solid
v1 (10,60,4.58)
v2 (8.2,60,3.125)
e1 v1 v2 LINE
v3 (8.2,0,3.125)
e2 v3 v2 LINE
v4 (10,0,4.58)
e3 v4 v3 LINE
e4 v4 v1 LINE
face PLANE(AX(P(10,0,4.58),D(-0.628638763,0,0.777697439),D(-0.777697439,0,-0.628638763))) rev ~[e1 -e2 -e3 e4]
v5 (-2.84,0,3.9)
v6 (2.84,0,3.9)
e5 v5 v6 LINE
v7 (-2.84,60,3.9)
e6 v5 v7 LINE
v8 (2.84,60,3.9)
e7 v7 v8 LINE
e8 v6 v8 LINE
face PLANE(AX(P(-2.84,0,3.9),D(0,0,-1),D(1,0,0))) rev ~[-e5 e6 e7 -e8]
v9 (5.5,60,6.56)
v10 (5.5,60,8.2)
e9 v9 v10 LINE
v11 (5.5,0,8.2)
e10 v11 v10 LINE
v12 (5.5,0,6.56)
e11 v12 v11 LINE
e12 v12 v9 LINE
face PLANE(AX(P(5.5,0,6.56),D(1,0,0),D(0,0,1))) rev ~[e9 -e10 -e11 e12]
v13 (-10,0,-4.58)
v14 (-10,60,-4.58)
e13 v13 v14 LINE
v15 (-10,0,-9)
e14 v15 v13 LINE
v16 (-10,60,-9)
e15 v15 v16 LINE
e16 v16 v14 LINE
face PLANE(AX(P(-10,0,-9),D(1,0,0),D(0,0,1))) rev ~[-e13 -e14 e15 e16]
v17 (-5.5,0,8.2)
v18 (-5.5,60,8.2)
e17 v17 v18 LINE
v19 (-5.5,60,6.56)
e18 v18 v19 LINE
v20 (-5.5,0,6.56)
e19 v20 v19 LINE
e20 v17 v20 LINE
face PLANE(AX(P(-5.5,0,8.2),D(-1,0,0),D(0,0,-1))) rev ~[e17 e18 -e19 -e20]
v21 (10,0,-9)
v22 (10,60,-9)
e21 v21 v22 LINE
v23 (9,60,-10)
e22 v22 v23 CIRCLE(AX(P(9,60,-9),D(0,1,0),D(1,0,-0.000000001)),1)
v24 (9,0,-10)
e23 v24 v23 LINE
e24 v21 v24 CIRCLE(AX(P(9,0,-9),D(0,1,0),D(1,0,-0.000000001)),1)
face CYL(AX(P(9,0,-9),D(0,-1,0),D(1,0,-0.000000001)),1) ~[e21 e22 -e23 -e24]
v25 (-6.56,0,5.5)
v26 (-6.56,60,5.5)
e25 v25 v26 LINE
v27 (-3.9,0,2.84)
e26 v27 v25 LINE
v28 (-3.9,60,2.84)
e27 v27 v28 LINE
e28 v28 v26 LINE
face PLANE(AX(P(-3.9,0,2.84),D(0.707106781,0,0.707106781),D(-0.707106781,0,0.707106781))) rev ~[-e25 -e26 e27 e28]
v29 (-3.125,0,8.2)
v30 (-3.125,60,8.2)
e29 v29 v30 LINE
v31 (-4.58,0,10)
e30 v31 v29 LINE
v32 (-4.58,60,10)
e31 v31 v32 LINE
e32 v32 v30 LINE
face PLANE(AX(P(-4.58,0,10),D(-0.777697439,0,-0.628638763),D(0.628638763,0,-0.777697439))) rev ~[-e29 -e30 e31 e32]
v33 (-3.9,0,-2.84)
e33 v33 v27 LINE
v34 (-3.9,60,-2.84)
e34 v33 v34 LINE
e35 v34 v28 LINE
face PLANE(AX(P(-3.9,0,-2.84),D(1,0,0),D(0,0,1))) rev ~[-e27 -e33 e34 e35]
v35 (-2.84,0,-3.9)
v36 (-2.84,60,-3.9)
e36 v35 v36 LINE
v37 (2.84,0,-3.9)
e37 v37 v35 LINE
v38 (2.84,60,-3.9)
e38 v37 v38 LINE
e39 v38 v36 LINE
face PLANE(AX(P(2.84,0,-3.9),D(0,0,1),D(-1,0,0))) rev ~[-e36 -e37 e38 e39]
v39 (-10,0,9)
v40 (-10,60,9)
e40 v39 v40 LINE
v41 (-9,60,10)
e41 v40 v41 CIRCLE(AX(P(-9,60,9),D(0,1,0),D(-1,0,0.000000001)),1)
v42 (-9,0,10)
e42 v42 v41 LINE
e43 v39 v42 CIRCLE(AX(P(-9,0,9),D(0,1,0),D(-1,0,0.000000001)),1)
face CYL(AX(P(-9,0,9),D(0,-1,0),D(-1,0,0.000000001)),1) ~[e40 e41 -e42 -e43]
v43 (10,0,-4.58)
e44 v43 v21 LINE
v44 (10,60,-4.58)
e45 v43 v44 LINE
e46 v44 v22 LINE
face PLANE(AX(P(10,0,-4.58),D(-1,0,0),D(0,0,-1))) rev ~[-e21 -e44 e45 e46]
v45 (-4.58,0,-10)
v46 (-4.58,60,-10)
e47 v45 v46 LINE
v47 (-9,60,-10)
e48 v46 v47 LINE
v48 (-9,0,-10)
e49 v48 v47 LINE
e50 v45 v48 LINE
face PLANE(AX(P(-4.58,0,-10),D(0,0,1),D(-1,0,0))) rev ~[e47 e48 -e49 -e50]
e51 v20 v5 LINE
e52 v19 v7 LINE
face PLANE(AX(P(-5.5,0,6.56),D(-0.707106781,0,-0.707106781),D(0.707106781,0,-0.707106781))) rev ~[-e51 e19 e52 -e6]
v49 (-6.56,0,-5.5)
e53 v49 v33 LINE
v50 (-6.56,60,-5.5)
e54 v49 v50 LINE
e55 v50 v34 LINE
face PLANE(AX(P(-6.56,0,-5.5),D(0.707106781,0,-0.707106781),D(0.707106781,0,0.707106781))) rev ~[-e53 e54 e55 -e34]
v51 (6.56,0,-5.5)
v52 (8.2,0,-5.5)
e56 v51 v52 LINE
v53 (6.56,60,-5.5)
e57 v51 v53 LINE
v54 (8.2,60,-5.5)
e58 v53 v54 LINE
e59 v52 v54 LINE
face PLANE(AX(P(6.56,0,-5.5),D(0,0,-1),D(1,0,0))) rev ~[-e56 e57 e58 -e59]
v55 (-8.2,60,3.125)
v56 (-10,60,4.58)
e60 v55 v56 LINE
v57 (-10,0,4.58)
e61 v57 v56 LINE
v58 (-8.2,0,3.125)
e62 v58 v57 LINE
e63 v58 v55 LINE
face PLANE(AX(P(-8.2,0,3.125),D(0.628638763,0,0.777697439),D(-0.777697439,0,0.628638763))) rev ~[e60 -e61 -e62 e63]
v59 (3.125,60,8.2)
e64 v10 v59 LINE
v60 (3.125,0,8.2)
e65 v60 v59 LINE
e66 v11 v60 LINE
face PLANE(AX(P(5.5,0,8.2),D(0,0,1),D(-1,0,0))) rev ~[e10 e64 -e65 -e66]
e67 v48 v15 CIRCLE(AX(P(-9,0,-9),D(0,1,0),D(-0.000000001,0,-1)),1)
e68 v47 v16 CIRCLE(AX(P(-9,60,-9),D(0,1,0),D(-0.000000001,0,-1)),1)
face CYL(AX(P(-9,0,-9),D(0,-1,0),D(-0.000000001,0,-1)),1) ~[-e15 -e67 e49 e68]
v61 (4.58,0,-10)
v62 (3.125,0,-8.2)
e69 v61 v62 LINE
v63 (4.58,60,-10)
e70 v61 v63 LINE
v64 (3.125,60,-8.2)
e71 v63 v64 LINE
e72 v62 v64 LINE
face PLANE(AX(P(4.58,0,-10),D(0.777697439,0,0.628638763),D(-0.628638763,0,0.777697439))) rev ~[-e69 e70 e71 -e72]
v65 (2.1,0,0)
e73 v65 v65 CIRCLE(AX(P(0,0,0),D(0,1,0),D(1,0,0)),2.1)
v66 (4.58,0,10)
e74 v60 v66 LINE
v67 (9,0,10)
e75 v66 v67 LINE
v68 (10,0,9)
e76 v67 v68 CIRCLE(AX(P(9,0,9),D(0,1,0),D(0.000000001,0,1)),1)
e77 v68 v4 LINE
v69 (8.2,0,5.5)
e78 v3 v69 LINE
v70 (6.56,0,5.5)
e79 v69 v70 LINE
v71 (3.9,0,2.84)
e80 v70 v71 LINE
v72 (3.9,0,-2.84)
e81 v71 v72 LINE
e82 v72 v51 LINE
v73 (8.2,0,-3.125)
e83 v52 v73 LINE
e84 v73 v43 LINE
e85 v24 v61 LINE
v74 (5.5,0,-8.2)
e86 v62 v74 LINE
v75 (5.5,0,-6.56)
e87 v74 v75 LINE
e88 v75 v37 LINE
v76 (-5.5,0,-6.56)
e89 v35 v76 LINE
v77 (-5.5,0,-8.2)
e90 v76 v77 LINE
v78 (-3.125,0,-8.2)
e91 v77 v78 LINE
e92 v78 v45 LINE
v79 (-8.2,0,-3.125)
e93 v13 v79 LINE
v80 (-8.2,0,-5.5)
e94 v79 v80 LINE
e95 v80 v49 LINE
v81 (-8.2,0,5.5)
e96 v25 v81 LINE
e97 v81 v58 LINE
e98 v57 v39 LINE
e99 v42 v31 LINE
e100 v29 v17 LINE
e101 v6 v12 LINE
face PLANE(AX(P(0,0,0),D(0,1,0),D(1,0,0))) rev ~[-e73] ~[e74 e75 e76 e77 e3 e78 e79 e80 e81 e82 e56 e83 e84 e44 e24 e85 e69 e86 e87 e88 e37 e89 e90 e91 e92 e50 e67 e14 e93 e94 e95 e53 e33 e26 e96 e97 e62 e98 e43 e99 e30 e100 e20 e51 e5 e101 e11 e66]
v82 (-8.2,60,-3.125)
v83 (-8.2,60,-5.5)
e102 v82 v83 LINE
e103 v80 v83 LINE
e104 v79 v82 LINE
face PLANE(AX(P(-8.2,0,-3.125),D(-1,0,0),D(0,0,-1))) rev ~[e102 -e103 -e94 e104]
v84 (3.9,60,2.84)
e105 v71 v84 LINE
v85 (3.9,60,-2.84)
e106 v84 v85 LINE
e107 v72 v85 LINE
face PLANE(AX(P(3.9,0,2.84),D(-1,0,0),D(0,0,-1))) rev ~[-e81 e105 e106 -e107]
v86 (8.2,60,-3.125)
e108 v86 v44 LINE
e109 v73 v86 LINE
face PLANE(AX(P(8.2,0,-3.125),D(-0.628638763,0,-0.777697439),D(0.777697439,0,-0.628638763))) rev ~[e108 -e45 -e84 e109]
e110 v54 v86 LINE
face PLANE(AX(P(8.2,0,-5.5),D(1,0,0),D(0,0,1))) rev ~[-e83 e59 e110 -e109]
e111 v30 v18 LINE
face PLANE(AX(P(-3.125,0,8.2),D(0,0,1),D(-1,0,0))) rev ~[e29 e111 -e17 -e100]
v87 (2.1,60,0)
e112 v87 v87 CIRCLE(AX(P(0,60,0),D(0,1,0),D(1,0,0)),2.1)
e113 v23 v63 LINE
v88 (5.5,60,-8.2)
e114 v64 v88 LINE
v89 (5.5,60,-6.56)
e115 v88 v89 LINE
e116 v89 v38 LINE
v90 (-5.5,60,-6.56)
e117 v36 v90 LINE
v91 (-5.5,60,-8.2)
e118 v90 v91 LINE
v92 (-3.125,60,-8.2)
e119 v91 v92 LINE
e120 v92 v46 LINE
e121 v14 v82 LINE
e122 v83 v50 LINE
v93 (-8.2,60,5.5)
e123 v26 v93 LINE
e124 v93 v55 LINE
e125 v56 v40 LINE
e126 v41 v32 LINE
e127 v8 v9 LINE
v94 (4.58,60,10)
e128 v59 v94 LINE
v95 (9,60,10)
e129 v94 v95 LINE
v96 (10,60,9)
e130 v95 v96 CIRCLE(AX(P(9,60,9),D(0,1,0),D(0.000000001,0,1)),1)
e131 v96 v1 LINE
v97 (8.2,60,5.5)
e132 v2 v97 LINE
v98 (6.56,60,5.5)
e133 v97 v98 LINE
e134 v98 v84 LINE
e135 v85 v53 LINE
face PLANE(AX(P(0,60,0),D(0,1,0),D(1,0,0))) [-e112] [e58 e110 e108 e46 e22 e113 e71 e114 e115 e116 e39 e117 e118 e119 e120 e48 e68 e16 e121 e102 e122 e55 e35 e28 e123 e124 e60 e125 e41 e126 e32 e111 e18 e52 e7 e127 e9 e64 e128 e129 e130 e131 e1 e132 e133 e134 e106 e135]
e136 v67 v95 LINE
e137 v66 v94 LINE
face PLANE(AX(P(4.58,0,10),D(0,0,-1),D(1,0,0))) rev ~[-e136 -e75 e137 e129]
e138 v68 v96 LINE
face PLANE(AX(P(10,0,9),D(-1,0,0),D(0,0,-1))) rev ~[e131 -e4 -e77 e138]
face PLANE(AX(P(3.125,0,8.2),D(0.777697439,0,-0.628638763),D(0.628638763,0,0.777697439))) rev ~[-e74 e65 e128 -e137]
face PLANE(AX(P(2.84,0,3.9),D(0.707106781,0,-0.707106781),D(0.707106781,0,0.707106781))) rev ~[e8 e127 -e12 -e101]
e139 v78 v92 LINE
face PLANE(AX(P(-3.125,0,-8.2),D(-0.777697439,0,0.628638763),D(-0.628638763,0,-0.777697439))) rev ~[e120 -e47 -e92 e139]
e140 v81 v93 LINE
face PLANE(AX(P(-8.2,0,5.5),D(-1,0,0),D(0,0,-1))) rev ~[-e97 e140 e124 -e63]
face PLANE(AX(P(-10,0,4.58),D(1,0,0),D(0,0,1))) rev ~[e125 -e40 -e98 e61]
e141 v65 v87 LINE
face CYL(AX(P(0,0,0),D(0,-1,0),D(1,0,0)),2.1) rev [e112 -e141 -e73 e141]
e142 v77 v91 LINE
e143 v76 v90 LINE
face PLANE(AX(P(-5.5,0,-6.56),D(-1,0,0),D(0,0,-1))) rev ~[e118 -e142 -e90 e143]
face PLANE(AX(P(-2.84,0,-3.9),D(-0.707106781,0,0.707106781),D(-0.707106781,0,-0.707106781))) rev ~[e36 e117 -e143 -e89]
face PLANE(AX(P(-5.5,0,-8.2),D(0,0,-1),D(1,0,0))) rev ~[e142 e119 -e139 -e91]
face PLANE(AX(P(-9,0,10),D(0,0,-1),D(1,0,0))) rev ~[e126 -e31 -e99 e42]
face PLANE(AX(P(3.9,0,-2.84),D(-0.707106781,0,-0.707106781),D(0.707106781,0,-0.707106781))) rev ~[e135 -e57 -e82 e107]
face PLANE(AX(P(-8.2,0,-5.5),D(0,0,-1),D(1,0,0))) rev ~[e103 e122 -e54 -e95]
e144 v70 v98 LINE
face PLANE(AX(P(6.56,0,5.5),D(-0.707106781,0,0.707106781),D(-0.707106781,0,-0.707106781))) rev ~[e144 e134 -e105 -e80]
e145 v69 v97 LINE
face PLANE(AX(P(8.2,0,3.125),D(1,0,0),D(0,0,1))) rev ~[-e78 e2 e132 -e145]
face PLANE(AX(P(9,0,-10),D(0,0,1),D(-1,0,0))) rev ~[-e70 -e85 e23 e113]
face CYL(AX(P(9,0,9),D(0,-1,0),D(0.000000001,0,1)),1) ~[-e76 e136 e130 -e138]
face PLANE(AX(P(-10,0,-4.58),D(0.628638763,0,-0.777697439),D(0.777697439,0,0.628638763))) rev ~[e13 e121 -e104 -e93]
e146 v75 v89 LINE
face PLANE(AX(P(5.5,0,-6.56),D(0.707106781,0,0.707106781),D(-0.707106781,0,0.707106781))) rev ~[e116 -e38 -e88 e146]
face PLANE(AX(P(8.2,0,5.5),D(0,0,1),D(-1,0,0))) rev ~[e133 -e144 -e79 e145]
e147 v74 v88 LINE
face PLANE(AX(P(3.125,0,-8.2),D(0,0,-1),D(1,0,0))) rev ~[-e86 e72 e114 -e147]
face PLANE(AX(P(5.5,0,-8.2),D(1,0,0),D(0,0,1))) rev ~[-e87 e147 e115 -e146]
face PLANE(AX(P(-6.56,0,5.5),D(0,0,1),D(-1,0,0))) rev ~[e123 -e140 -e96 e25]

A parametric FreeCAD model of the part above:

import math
import FreeCAD as App
import Part
import Sketcher
from FreeCAD import Vector

doc = App.newDocument("Part")
body = doc.addObject("PartDesign::Body", "Body")

sketch1 = doc.addObject("Sketcher::SketchObject", "Sketch")
body.addObject(sketch1)
sketch1.AttachmentSupport = (doc.XZ_Plane, [""])
sketch1.MapMode = "FlatFace"
sketch1.addGeometry(Part.LineSegment(Vector(-5.5, -8.2, 0), Vector(-3.1, -8.2, 0)), False)
sketch1.addGeometry(Part.LineSegment(Vector(-3.1, -8.2, 0), Vector(-4.6, -10, 0)), False)
sketch1.addGeometry(Part.LineSegment(Vector(-4.6, -10, 0), Vector(-9, -10, 0)), False)
sketch1.addGeometry(Part.ArcOfCircle(Part.Circle(Vector(-9, -9, 0), Vector(0, 0, 1), 1), math.radians(-180), math.radians(-90)), False)
sketch1.addGeometry(Part.LineSegment(Vector(-10, -9, 0), Vector(-10, -4.6, 0)), False)
sketch1.addGeometry(Part.LineSegment(Vector(-10, -4.6, 0), Vector(-8.2, -3.1, 0)), False)
sketch1.addGeometry(Part.LineSegment(Vector(-8.2, -3.1, 0), Vector(-8.2, -5.5, 0)), False)
sketch1.addGeometry(Part.LineSegment(Vector(-8.2, -5.5, 0), Vector(-6.6, -5.5, 0)), False)
sketch1.addGeometry(Part.LineSegment(Vector(-6.6, -5.5, 0), Vector(-3.9, -2.8, 0)), False)
sketch1.addGeometry(Part.LineSegment(Vector(-3.9, -2.8, 0), Vector(-3.9, 2.8, 0)), False)
sketch1.addGeometry(Part.LineSegment(Vector(-3.9, 2.8, 0), Vector(-6.6, 5.5, 0)), False)
sketch1.addGeometry(Part.LineSegment(Vector(-6.6, 5.5, 0), Vector(-8.2, 5.5, 0)), False)
sketch1.addGeometry(Part.LineSegment(Vector(-8.2, 5.5, 0), Vector(-8.2, 3.1, 0)), False)
sketch1.addGeometry(Part.LineSegment(Vector(-8.2, 3.1, 0), Vector(-10, 4.6, 0)), False)
sketch1.addGeometry(Part.LineSegment(Vector(-10, 4.6, 0), Vector(-10, 9, 0)), False)
sketch1.addGeometry(Part.ArcOfCircle(Part.Circle(Vector(-9, 9, 0), Vector(0, 0, 1), 1), math.radians(90), math.radians(180)), False)
sketch1.addGeometry(Part.LineSegment(Vector(-9, 10, 0), Vector(-4.6, 10, 0)), False)
sketch1.addGeometry(Part.LineSegment(Vector(-4.6, 10, 0), Vector(-3.1, 8.2, 0)), False)
sketch1.addGeometry(Part.LineSegment(Vector(-3.1, 8.2, 0), Vector(-5.5, 8.2, 0)), False)
sketch1.addGeometry(Part.LineSegment(Vector(-5.5, 8.2, 0), Vector(-5.5, 6.6, 0)), False)
sketch1.addGeometry(Part.LineSegment(Vector(-5.5, 6.6, 0), Vector(-2.8, 3.9, 0)), False)
sketch1.addGeometry(Part.LineSegment(Vector(-2.8, 3.9, 0), Vector(2.8, 3.9, 0)), False)
sketch1.addGeometry(Part.LineSegment(Vector(2.8, 3.9, 0), Vector(5.5, 6.6, 0)), False)
sketch1.addGeometry(Part.LineSegment(Vector(5.5, 6.6, 0), Vector(5.5, 8.2, 0)), False)
sketch1.addGeometry(Part.LineSegment(Vector(5.5, 8.2, 0), Vector(3.1, 8.2, 0)), False)
sketch1.addGeometry(Part.LineSegment(Vector(3.1, 8.2, 0), Vector(4.6, 10, 0)), False)
sketch1.addGeometry(Part.LineSegment(Vector(4.6, 10, 0), Vector(9, 10, 0)), False)
sketch1.addGeometry(Part.ArcOfCircle(Part.Circle(Vector(9, 9, 0), Vector(0, 0, 1), 1), math.radians(0), math.radians(90)), False)
sketch1.addGeometry(Part.LineSegment(Vector(10, 9, 0), Vector(10, 4.6, 0)), False)
sketch1.addGeometry(Part.LineSegment(Vector(10, 4.6, 0), Vector(8.2, 3.1, 0)), False)
sketch1.addGeometry(Part.LineSegment(Vector(8.2, 3.1, 0), Vector(8.2, 5.5, 0)), False)
sketch1.addGeometry(Part.LineSegment(Vector(8.2, 5.5, 0), Vector(6.6, 5.5, 0)), False)
sketch1.addGeometry(Part.LineSegment(Vector(6.6, 5.5, 0), Vector(3.9, 2.8, 0)), False)
sketch1.addGeometry(Part.LineSegment(Vector(3.9, 2.8, 0), Vector(3.9, -2.8, 0)), False)
sketch1.addGeometry(Part.LineSegment(Vector(3.9, -2.8, 0), Vector(6.6, -5.5, 0)), False)
sketch1.addGeometry(Part.LineSegment(Vector(6.6, -5.5, 0), Vector(8.2, -5.5, 0)), False)
sketch1.addGeometry(Part.LineSegment(Vector(8.2, -5.5, 0), Vector(8.2, -3.1, 0)), False)
sketch1.addGeometry(Part.LineSegment(Vector(8.2, -3.1, 0), Vector(10, -4.6, 0)), False)
sketch1.addGeometry(Part.LineSegment(Vector(10, -4.6, 0), Vector(10, -9, 0)), False)
sketch1.addGeometry(Part.ArcOfCircle(Part.Circle(Vector(9, -9, 0), Vector(0, 0, 1), 1), math.radians(-90), math.radians(0)), False)
sketch1.addGeometry(Part.LineSegment(Vector(9, -10, 0), Vector(4.6, -10, 0)), False)
sketch1.addGeometry(Part.LineSegment(Vector(4.6, -10, 0), Vector(3.1, -8.2, 0)), False)
sketch1.addGeometry(Part.LineSegment(Vector(3.1, -8.2, 0), Vector(5.5, -8.2, 0)), False)
sketch1.addGeometry(Part.LineSegment(Vector(5.5, -8.2, 0), Vector(5.5, -6.6, 0)), False)
sketch1.addGeometry(Part.LineSegment(Vector(5.5, -6.6, 0), Vector(2.8, -3.9, 0)), False)
sketch1.addGeometry(Part.LineSegment(Vector(2.8, -3.9, 0), Vector(-2.8, -3.9, 0)), False)
sketch1.addGeometry(Part.LineSegment(Vector(-2.8, -3.9, 0), Vector(-5.5, -6.6, 0)), False)
sketch1.addGeometry(Part.LineSegment(Vector(-5.5, -6.6, 0), Vector(-5.5, -8.2, 0)), False)
sketch1.addGeometry(Part.Circle(Vector(0, 0, 0), Vector(0, 0, 1), 2.1), False)
sketch1.addConstraint(Sketcher.Constraint("Coincident", 0, 2, 1, 1))
sketch1.addConstraint(Sketcher.Constraint("Coincident", 1, 2, 2, 1))
sketch1.addConstraint(Sketcher.Constraint("Tangent", 2, 2, 3, 2))
sketch1.addConstraint(Sketcher.Constraint("Tangent", 3, 1, 4, 1))
sketch1.addConstraint(Sketcher.Constraint("Coincident", 4, 2, 5, 1))
sketch1.addConstraint(Sketcher.Constraint("Coincident", 5, 2, 6, 1))
sketch1.addConstraint(Sketcher.Constraint("Coincident", 6, 2, 7, 1))
sketch1.addConstraint(Sketcher.Constraint("Coincident", 7, 2, 8, 1))
sketch1.addConstraint(Sketcher.Constraint("Coincident", 8, 2, 9, 1))
sketch1.addConstraint(Sketcher.Constraint("Coincident", 9, 2, 10, 1))
sketch1.addConstraint(Sketcher.Constraint("Coincident", 10, 2, 11, 1))
sketch1.addConstraint(Sketcher.Constraint("Coincident", 11, 2, 12, 1))
sketch1.addConstraint(Sketcher.Constraint("Coincident", 12, 2, 13, 1))
sketch1.addConstraint(Sketcher.Constraint("Coincident", 13, 2, 14, 1))
sketch1.addConstraint(Sketcher.Constraint("Tangent", 14, 2, 15, 2))
sketch1.addConstraint(Sketcher.Constraint("Tangent", 15, 1, 16, 1))
sketch1.addConstraint(Sketcher.Constraint("Coincident", 16, 2, 17, 1))
sketch1.addConstraint(Sketcher.Constraint("Coincident", 17, 2, 18, 1))
sketch1.addConstraint(Sketcher.Constraint("Coincident", 18, 2, 19, 1))
sketch1.addConstraint(Sketcher.Constraint("Coincident", 19, 2, 20, 1))
sketch1.addConstraint(Sketcher.Constraint("Coincident", 20, 2, 21, 1))
sketch1.addConstraint(Sketcher.Constraint("Coincident", 21, 2, 22, 1))
sketch1.addConstraint(Sketcher.Constraint("Coincident", 22, 2, 23, 1))
sketch1.addConstraint(Sketcher.Constraint("Coincident", 23, 2, 24, 1))
sketch1.addConstraint(Sketcher.Constraint("Coincident", 24, 2, 25, 1))
sketch1.addConstraint(Sketcher.Constraint("Coincident", 25, 2, 26, 1))
sketch1.addConstraint(Sketcher.Constraint("Tangent", 26, 2, 27, 2))
sketch1.addConstraint(Sketcher.Constraint("Tangent", 27, 1, 28, 1))
sketch1.addConstraint(Sketcher.Constraint("Coincident", 28, 2, 29, 1))
sketch1.addConstraint(Sketcher.Constraint("Coincident", 29, 2, 30, 1))
sketch1.addConstraint(Sketcher.Constraint("Coincident", 30, 2, 31, 1))
sketch1.addConstraint(Sketcher.Constraint("Coincident", 31, 2, 32, 1))
sketch1.addConstraint(Sketcher.Constraint("Coincident", 32, 2, 33, 1))
sketch1.addConstraint(Sketcher.Constraint("Coincident", 33, 2, 34, 1))
sketch1.addConstraint(Sketcher.Constraint("Coincident", 34, 2, 35, 1))
sketch1.addConstraint(Sketcher.Constraint("Coincident", 35, 2, 36, 1))
sketch1.addConstraint(Sketcher.Constraint("Coincident", 36, 2, 37, 1))
sketch1.addConstraint(Sketcher.Constraint("Coincident", 37, 2, 38, 1))
sketch1.addConstraint(Sketcher.Constraint("Tangent", 38, 2, 39, 2))
sketch1.addConstraint(Sketcher.Constraint("Tangent", 39, 1, 40, 1))
sketch1.addConstraint(Sketcher.Constraint("Coincident", 40, 2, 41, 1))
sketch1.addConstraint(Sketcher.Constraint("Coincident", 41, 2, 42, 1))
sketch1.addConstraint(Sketcher.Constraint("Coincident", 42, 2, 43, 1))
sketch1.addConstraint(Sketcher.Constraint("Coincident", 43, 2, 44, 1))
sketch1.addConstraint(Sketcher.Constraint("Coincident", 44, 2, 45, 1))
sketch1.addConstraint(Sketcher.Constraint("Coincident", 45, 2, 46, 1))
sketch1.addConstraint(Sketcher.Constraint("Coincident", 46, 2, 47, 1))
sketch1.addConstraint(Sketcher.Constraint("Coincident", 47, 2, 0, 1))
sketch1.addConstraint(Sketcher.Constraint("Horizontal", 0))
sketch1.addConstraint(Sketcher.Constraint("Horizontal", 2))
sketch1.addConstraint(Sketcher.Constraint("Vertical", 4))
sketch1.addConstraint(Sketcher.Constraint("Vertical", 6))
sketch1.addConstraint(Sketcher.Constraint("Horizontal", 7))
sketch1.addConstraint(Sketcher.Constraint("Vertical", 9))
sketch1.addConstraint(Sketcher.Constraint("Horizontal", 11))
sketch1.addConstraint(Sketcher.Constraint("Vertical", 12))
sketch1.addConstraint(Sketcher.Constraint("Vertical", 14))
sketch1.addConstraint(Sketcher.Constraint("Horizontal", 16))
sketch1.addConstraint(Sketcher.Constraint("Horizontal", 18))
sketch1.addConstraint(Sketcher.Constraint("Vertical", 19))
sketch1.addConstraint(Sketcher.Constraint("Horizontal", 21))
sketch1.addConstraint(Sketcher.Constraint("Vertical", 23))
sketch1.addConstraint(Sketcher.Constraint("Horizontal", 24))
sketch1.addConstraint(Sketcher.Constraint("Horizontal", 26))
sketch1.addConstraint(Sketcher.Constraint("Vertical", 28))
sketch1.addConstraint(Sketcher.Constraint("Vertical", 30))
sketch1.addConstraint(Sketcher.Constraint("Horizontal", 31))
sketch1.addConstraint(Sketcher.Constraint("Vertical", 33))
sketch1.addConstraint(Sketcher.Constraint("Horizontal", 35))
sketch1.addConstraint(Sketcher.Constraint("Vertical", 36))
sketch1.addConstraint(Sketcher.Constraint("Vertical", 38))
sketch1.addConstraint(Sketcher.Constraint("Horizontal", 40))
sketch1.addConstraint(Sketcher.Constraint("Horizontal", 42))
sketch1.addConstraint(Sketcher.Constraint("Vertical", 43))
sketch1.addConstraint(Sketcher.Constraint("Horizontal", 45))
sketch1.addConstraint(Sketcher.Constraint("Vertical", 47))
sketch1.addConstraint(Sketcher.Constraint("Coincident", 48, 3, -1, 1))
sketch1.addConstraint(Sketcher.Constraint("Equal", 3, 15))
sketch1.addConstraint(Sketcher.Constraint("Equal", 15, 27))
sketch1.addConstraint(Sketcher.Constraint("Equal", 27, 39))
sketch1.addConstraint(Sketcher.Constraint("Symmetric", 3, 3, 27, 3, -1, 1))
sketch1.addConstraint(Sketcher.Constraint("Symmetric", 15, 3, 39, 3, -1, 1))
sketch1.addConstraint(Sketcher.Constraint("Symmetric", 0, 2, 24, 2, -1, 1))
sketch1.addConstraint(Sketcher.Constraint("Symmetric", 5, 2, 29, 2, -1, 1))
sketch1.addConstraint(Sketcher.Constraint("Symmetric", 7, 2, 31, 2, -1, 1))
sketch1.addConstraint(Sketcher.Constraint("Symmetric", 8, 2, 32, 2, -1, 1))
sketch1.addConstraint(Sketcher.Constraint("Symmetric", 10, 2, 34, 2, -1, 1))
sketch1.addConstraint(Sketcher.Constraint("Symmetric", 12, 2, 36, 2, -1, 1))
sketch1.addConstraint(Sketcher.Constraint("Symmetric", 17, 2, 41, 2, -1, 1))
sketch1.addConstraint(Sketcher.Constraint("Symmetric", 19, 2, 43, 2, -1, 1))
sketch1.addConstraint(Sketcher.Constraint("Symmetric", 20, 2, 44, 2, -1, 1))
sketch1.addConstraint(Sketcher.Constraint("Symmetric", 22, 2, 46, 2, -1, 1))
sketch1.addConstraint(Sketcher.Constraint("Symmetric", 15, 3, 27, 3, -2))
sketch1.addConstraint(Sketcher.Constraint("Symmetric", 19, 2, 22, 2, -2))
sketch1.addConstraint(Sketcher.Constraint("Symmetric", 17, 2, 24, 2, -2))
sketch1.addConstraint(Sketcher.Constraint("Symmetric", 12, 2, 29, 2, -2))
sketch1.addConstraint(Sketcher.Constraint("Symmetric", 10, 2, 31, 2, -2))
sketch1.addConstraint(Sketcher.Constraint("Perpendicular", 8, 10))
sketch1.addConstraint(Sketcher.Constraint("Perpendicular", 1, 13))
sketch1.addConstraint(Sketcher.Constraint("Perpendicular", 5, 17))
sketch1.addConstraint(Sketcher.Constraint("Parallel", 10, 20))
sketch1.addConstraint(Sketcher.Constraint("Perpendicular", 20, 22))
sketch1.addConstraint(Sketcher.Constraint("Perpendicular", 13, 25))
sketch1.addConstraint(Sketcher.Constraint("Perpendicular", 17, 29))
sketch1.addConstraint(Sketcher.Constraint("Perpendicular", 32, 34))
sketch1.addConstraint(Sketcher.Constraint("Perpendicular", 25, 37))
sketch1.addConstraint(Sketcher.Constraint("Perpendicular", 29, 41))
sketch1.addConstraint(Sketcher.Constraint("Perpendicular", 44, 46))
sketch1.addConstraint(Sketcher.Constraint("Horizontal", 13, 2, 28, 2))
sketch1.addConstraint(Sketcher.Constraint("Horizontal", 9, 2, 32, 2))
sketch1.addConstraint(Sketcher.Constraint("Equal", 40, 4))
sketch1.addConstraint(Sketcher.Constraint("Equal", 42, 6))
sketch1.addConstraint(Sketcher.Constraint("Equal", 45, 9))
sketch1.addConstraint(Sketcher.Constraint("Equal", 35, 19))
sketch1.addConstraint(Sketcher.Constraint("Equal", 1, 5))
sketch1.addConstraint(Sketcher.Constraint("Equal", 10, 20))
sketch1.addConstraint(Sketcher.Constraint("Radius", 3, 1.0))
sketch1.addConstraint(Sketcher.Constraint("Diameter", 48, 4.2))
sketch1.addConstraint(Sketcher.Constraint("DistanceX", 3, 3, -1, 1, 9.0))
sketch1.addConstraint(Sketcher.Constraint("DistanceX", 2, 2, 2, 1, 4.42))
sketch1.addConstraint(Sketcher.Constraint("DistanceX", 7, 1, 7, 2, 1.64))
sketch1.addConstraint(Sketcher.Constraint("DistanceX", 21, 1, 21, 2, 5.68))
sketch1.addConstraint(Sketcher.Constraint("DistanceY", 0, 2, -1, 1, 8.2))
sketch1.addConstraint(Sketcher.Constraint("DistanceY", 6, 2, -1, 1, 5.5))
sketch1.addConstraint(Sketcher.Constraint("DistanceX", 0, 1, 0, 2, 2.375))
pad1 = doc.addObject("PartDesign::Pad", "Pad")
body.addObject(pad1)
pad1.Profile = sketch1
pad1.Length = 60
pad1.Reversed = True

doc.recompute()
